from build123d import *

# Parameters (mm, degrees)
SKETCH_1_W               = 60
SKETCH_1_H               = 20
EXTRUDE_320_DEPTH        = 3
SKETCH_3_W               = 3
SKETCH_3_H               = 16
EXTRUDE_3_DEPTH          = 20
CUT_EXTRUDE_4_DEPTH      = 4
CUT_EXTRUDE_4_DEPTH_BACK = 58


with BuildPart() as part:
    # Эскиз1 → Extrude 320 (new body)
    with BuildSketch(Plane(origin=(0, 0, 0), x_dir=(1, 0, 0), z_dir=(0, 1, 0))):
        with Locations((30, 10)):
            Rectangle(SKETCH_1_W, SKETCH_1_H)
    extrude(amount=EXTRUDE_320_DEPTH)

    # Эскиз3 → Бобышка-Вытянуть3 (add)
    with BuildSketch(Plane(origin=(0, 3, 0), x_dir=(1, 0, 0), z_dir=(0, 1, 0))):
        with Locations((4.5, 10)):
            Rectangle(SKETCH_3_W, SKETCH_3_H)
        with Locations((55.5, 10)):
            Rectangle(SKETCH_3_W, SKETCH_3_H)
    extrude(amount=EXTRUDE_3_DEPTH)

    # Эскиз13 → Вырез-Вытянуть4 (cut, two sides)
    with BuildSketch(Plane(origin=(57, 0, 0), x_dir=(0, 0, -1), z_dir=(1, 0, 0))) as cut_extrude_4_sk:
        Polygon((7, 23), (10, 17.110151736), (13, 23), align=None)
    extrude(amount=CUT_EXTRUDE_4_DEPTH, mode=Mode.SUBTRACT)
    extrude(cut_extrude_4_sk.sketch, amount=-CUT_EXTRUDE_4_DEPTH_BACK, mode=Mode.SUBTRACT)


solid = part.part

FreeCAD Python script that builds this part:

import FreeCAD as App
import Part
import Sketcher
from FreeCAD import Vector
Q = App.Units.Quantity


def add_polygon(sketch, points):
    """Adds a closed chain of lines whose ends are joined by coincident constraints."""
    first, n = sketch.GeometryCount, len(points)
    for a, b in zip(points, points[1:] + points[:1]):
        sketch.addGeometry(Part.LineSegment(App.Vector(*a, 0), App.Vector(*b, 0)), False)
    for i in range(n):
        sketch.addConstraint(Sketcher.Constraint("Coincident", first + i, 2, first + (i + 1) % n, 1))

doc = App.newDocument("Part")
params = doc.addObject("Spreadsheet::Sheet", "Params")
for row, (alias, value) in enumerate([
    ("sketch1_width", "60 mm"),
    ("sketch1_height", "20 mm"),
    ("pad1_length", "3 mm"),
    ("sketch2_width", "3 mm"),
    ("sketch2_height", "16 mm"),
    ("pad2_length", "20 mm"),
    ("sketch3_height", "6 mm"),
], start=1):
    params.set(f"A{row}", alias)
    params.set(f"B{row}", "=" + value)
    params.setAlias(f"B{row}", alias)

body = doc.addObject("PartDesign::Body", "Body")

sketch1 = doc.addObject("Sketcher::SketchObject", "Sketch")
body.addObject(sketch1)
sketch1.AttachmentSupport = (doc.XZ_Plane, [""])
sketch1.MapMode = "FlatFace"
add_polygon(sketch1, [(0, -20), (0, 0), (60, 0), (60, -20)])
sketch1.addConstraint([
    Sketcher.Constraint("Vertical", 0),
    Sketcher.Constraint("Horizontal", 1),
    Sketcher.Constraint("Vertical", 2),
    Sketcher.Constraint("Horizontal", 3),
    Sketcher.Constraint("Coincident", 0, 2, -1, 1),
    Sketcher.Constraint("DistanceX", 1, 1, 1, 2, Q("60 mm")),
    Sketcher.Constraint("DistanceY", 0, 1, 0, 2, Q("20 mm")),
])
sketch1.setExpression("Constraints[9]", "Params.sketch1_width")
sketch1.setExpression("Constraints[10]", "Params.sketch1_height")
pad1 = doc.addObject("PartDesign::Pad", "Pad")
body.addObject(pad1)
pad1.Profile = sketch1
pad1.setExpression("Length", "Params.pad1_length")
pad1.Reversed = True

sketch2 = doc.addObject("Sketcher::SketchObject", "Sketch001")
body.addObject(sketch2)
sketch2.AttachmentSupport = (doc.XZ_Plane, [""])
sketch2.MapMode = "FlatFace"
sketch2.AttachmentOffset = App.Placement(Vector(0, 0, -3), App.Rotation())
add_polygon(sketch2, [(3, -18), (3, -2), (6, -2), (6, -18)])
add_polygon(sketch2, [(54, -18), (54, -2), (57, -2), (57, -18)])
sketch2.addConstraint([
    Sketcher.Constraint("Vertical", 0),
    Sketcher.Constraint("Horizontal", 1),
    Sketcher.Constraint("Vertical", 2),
    Sketcher.Constraint("Horizontal", 3),
    Sketcher.Constraint("Vertical", 4),
    Sketcher.Constraint("Horizontal", 5),
    Sketcher.Constraint("Vertical", 6),
    Sketcher.Constraint("Horizontal", 7),
    Sketcher.Constraint("Horizontal", 1, 2, 4, 2),
    Sketcher.Constraint("Horizontal", 3, 2, 6, 2),
    Sketcher.Constraint("Equal", 3, 5),
    Sketcher.Constraint("DistanceX", 1, 1, 1, 2, Q("3 mm")),
    Sketcher.Constraint("DistanceY", 0, 1, 0, 2, Q("16 mm")),
    Sketcher.Constraint("DistanceX", -1, 1, 0, 2, Q("3 mm")),
    Sketcher.Constraint("DistanceY", 0, 2, -1, 1, Q("2 mm")),
    Sketcher.Constraint("DistanceX", -1, 1, 4, 2, Q("54 mm")),
])
sketch2.setExpression("Constraints[19]", "Params.sketch2_width")
sketch2.setExpression("Constraints[20]", "Params.sketch2_height")
pad2 = doc.addObject("PartDesign::Pad", "Pad001")
body.addObject(pad2)
pad2.Profile = sketch2
pad2.setExpression("Length", "Params.pad2_length")
pad2.Reversed = True

sketch3 = doc.addObject("Sketcher::SketchObject", "Sketch002")
body.addObject(sketch3)
sketch3.AttachmentSupport = (doc.YZ_Plane, [""])
sketch3.MapMode = "FlatFace"
sketch3.AttachmentOffset = App.Placement(Vector(0, 0, 57), App.Rotation())
add_polygon(sketch3, [(23, -7), (17, -10), (23, -13)])
sketch3.addConstraint([
    Sketcher.Constraint("Vertical", 2),
    Sketcher.Constraint("Equal", 0, 1),
    Sketcher.Constraint("DistanceY", 2, 1, 2, 2, Q("6 mm")),
    Sketcher.Constraint("DistanceY", 0, 2, -1, 1, Q("10 mm")),
    Sketcher.Constraint("DistanceX", -1, 1, 1, 2, Q("23 mm")),
    Sketcher.Constraint("DistanceX", -1, 1, 0, 2, Q("17.110152 mm")),
])
sketch3.setExpression("Constraints[5]", "Params.sketch3_height")
pocket1 = doc.addObject("PartDesign::Pocket", "Pocket")
body.addObject(pocket1)
pocket1.Profile = sketch3
pocket1.Type = "ThroughAll"
pocket1.Midplane = True

doc.recompute()
